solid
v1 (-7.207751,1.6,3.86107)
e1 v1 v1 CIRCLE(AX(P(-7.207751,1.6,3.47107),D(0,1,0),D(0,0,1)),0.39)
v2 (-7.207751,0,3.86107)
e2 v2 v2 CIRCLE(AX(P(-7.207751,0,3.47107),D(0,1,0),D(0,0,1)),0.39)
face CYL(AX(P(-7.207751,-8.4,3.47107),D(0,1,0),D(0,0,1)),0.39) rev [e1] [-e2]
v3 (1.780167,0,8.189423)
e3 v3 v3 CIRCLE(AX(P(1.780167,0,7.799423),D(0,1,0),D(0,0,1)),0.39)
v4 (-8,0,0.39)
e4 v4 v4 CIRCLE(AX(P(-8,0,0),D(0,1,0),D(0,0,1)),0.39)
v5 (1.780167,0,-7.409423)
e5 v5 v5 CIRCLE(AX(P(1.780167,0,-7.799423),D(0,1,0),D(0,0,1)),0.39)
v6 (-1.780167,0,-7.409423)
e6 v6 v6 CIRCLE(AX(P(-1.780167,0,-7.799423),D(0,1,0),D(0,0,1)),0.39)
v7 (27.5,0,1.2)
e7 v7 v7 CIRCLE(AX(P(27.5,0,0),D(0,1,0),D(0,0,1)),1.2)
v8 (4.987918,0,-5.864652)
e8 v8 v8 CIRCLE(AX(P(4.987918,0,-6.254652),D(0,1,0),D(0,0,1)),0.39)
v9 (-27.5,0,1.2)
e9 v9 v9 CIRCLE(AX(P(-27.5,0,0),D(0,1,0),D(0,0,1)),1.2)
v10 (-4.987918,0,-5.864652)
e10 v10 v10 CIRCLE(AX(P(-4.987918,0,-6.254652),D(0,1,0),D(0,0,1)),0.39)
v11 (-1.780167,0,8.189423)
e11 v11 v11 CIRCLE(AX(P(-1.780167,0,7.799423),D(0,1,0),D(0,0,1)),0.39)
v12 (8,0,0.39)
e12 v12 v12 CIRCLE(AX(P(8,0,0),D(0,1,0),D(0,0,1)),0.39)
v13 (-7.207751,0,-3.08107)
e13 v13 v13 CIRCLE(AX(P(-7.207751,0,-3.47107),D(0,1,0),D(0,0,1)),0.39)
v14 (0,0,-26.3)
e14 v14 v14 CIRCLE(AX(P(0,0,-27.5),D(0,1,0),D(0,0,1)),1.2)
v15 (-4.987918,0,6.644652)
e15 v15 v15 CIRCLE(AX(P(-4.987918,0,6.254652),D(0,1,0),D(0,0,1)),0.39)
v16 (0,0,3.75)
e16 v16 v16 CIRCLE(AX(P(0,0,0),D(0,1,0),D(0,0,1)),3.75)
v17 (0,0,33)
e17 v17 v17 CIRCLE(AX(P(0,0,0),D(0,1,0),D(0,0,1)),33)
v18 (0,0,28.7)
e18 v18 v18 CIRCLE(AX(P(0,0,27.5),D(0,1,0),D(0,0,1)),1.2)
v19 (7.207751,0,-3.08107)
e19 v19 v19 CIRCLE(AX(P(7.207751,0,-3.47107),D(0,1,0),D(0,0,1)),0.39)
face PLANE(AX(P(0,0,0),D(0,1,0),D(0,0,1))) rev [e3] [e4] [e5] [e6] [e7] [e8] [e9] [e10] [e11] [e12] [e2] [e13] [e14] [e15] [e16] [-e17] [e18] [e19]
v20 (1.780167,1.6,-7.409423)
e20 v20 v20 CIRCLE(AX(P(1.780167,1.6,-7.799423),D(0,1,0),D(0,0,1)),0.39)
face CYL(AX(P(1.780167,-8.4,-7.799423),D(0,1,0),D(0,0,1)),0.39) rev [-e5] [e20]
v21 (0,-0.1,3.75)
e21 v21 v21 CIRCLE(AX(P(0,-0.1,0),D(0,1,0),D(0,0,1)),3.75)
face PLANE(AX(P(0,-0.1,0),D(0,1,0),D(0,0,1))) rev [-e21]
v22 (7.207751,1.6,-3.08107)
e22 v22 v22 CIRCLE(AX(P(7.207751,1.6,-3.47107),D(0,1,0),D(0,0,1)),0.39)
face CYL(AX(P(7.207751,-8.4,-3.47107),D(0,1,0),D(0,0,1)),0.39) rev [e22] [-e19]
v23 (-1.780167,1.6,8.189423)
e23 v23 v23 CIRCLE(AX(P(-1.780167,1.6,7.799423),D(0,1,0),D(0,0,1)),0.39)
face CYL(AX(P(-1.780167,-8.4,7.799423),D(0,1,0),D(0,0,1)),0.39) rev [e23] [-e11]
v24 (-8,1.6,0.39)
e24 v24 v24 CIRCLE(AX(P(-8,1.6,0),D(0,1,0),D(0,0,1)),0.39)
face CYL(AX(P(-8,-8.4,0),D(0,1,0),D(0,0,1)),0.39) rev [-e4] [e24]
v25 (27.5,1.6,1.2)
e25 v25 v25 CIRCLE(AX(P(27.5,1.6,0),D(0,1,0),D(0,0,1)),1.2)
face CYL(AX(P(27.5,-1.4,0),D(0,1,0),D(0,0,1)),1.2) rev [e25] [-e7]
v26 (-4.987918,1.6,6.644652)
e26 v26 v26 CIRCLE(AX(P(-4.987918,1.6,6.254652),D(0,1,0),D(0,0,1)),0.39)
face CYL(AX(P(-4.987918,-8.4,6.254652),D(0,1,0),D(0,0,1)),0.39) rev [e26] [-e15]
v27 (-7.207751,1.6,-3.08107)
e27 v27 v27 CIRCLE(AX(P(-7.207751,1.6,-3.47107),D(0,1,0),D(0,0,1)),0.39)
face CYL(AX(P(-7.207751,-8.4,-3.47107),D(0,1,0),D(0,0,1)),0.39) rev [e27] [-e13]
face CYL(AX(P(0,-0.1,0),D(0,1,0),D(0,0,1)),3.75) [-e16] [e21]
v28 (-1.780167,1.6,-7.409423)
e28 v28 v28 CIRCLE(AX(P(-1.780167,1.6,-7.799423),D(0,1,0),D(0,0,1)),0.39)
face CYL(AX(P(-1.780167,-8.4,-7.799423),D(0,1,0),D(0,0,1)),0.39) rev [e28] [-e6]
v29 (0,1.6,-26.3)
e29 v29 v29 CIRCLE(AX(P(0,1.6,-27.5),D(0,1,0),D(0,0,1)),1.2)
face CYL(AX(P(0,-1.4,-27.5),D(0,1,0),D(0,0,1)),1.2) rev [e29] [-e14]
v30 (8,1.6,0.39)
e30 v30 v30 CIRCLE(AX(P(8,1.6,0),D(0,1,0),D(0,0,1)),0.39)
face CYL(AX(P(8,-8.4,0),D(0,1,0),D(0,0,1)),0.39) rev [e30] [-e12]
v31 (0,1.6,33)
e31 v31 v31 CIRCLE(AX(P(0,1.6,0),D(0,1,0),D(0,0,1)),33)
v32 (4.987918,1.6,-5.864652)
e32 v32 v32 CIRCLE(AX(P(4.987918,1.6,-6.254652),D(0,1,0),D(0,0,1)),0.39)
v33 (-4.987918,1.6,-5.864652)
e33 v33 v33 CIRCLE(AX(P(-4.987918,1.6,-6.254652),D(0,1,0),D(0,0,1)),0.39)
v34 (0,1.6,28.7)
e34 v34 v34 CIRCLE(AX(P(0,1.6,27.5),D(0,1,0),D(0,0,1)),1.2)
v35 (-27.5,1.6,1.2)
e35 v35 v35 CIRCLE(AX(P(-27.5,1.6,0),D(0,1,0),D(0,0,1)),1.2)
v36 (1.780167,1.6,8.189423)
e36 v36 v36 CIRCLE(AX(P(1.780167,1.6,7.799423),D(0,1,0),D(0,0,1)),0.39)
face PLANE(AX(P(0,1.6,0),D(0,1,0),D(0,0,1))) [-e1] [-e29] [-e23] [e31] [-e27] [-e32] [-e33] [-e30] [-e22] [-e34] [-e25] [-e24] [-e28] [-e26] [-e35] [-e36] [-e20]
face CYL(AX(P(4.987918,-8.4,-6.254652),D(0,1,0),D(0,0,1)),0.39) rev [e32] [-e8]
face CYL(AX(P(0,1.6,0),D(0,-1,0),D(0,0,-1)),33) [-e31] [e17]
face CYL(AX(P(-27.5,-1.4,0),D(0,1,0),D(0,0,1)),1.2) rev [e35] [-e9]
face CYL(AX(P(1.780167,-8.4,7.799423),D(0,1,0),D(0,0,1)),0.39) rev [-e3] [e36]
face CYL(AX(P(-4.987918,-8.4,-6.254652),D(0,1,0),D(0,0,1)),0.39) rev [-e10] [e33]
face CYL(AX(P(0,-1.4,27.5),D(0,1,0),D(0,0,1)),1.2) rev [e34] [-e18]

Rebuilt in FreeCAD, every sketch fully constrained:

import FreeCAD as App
import Part
import Sketcher

doc = App.newDocument("Part")
body = doc.addObject("PartDesign::Body", "Body")

sketch1 = body.newObject("Sketcher::SketchObject", "Sketch")
sketch1.AttachmentSupport = (doc.getObject("XZ_Plane"), [""])
sketch1.MapMode = "FlatFace"
sketch1.addGeometry(Part.Circle(App.Vector(0, 0, 0), App.Vector(0, 0, 1), 33), False)
sketch1.addConstraint([
    Sketcher.Constraint("Coincident", 0, 3, -1, 1),
    Sketcher.Constraint("Diameter", 0, 66.0),
])
pad1 = body.newObject("PartDesign::Pad", "Pad")
pad1.Profile = sketch1
pad1.Length = 1.6
pad1.Reversed = True

sketch2 = body.newObject("Sketcher::SketchObject", "Sketch001")
sketch2.AttachmentSupport = (doc.getObject("XZ_Plane"), [""])
sketch2.MapMode = "FlatFace"
sketch2.AttachmentOffset = App.Placement(App.Vector(0, 0, -1.6), App.Rotation())
sketch2.addGeometry([
    Part.Circle(App.Vector(0, -27.5, 0), App.Vector(0, 0, 1), 1.2),
    Part.Circle(App.Vector(27.5, 0, 0), App.Vector(0, 0, 1), 1.2),
    Part.Circle(App.Vector(0, 27.5, 0), App.Vector(0, 0, 1), 1.2),
    Part.Circle(App.Vector(-27.5, 0, 0), App.Vector(0, 0, 1), 1.2),
], False)
sketch2.addConstraint([
    Sketcher.Constraint("Equal", 0, 1),
    Sketcher.Constraint("Equal", 1, 2),
    Sketcher.Constraint("Equal", 2, 3),
    Sketcher.Constraint("Symmetric", 0, 3, 2, 3, -1, 1),
    Sketcher.Constraint("Symmetric", 1, 3, 3, 3, -1, 1),
    Sketcher.Constraint("PointOnObject", 0, 3, -2),
    Sketcher.Constraint("PointOnObject", 1, 3, -1),
    Sketcher.Constraint("Diameter", 0, 2.4),
    Sketcher.Constraint("DistanceY", 0, 3, 2, 3, 55.0),
    Sketcher.Constraint("DistanceX", 3, 3, 1, 3, 55.0),
])
pocket1 = body.newObject("PartDesign::Pocket", "Pocket")
pocket1.Profile = sketch2
pocket1.Length = 3
pocket1.Reversed = True

sketch3 = body.newObject("Sketcher::SketchObject", "Sketch002")
sketch3.AttachmentSupport = (doc.getObject("XZ_Plane"), [""])
sketch3.MapMode = "FlatFace"
sketch3.AttachmentOffset = App.Placement(App.Vector(0, 0, -1.6), App.Rotation())
sketch3.addGeometry(Part.Circle(App.Vector(0, 0, 0), App.Vector(0, 0, 1), 3.75), False)
sketch3.addConstraint([
    Sketcher.Constraint("Coincident", 0, 3, -1, 1),
    Sketcher.Constraint("Diameter", 0, 7.5),
])
pocket2 = body.newObject("PartDesign::Pocket", "Pocket001")
pocket2.Profile = sketch3
pocket2.Length = 3
pocket2.Reversed = True

sketch4 = body.newObject("Sketcher::SketchObject", "Sketch003")
sketch4.AttachmentSupport = (doc.getObject("XZ_Plane"), [""])
sketch4.MapMode = "FlatFace"
sketch4.AttachmentOffset = App.Placement(App.Vector(0, 0, -1.6), App.Rotation())
sketch4.addGeometry([
    Part.Circle(App.Vector(-1.780167, -7.799423, 0), App.Vector(0, 0, 1), 0.39),
    Part.Circle(App.Vector(1.780167, -7.799423, 0), App.Vector(0, 0, 1), 0.39),
    Part.Circle(App.Vector(4.987918, -6.254652, 0), App.Vector(0, 0, 1), 0.39),
    Part.Circle(App.Vector(7.207751, -3.47107, 0), App.Vector(0, 0, 1), 0.39),
    Part.Circle(App.Vector(8, 0, 0), App.Vector(0, 0, 1), 0.39),
    Part.Circle(App.Vector(1.780167, 7.799423, 0), App.Vector(0, 0, 1), 0.39),
    Part.Circle(App.Vector(-1.780167, 7.799423, 0), App.Vector(0, 0, 1), 0.39),
    Part.Circle(App.Vector(-4.987918, 6.254652, 0), App.Vector(0, 0, 1), 0.39),
    Part.Circle(App.Vector(-7.207751, 3.47107, 0), App.Vector(0, 0, 1), 0.39),
    Part.Circle(App.Vector(-8, 0, 0), App.Vector(0, 0, 1), 0.39),
    Part.Circle(App.Vector(-7.207751, -3.47107, 0), App.Vector(0, 0, 1), 0.39),
    Part.Circle(App.Vector(-4.987918, -6.254652, 0), App.Vector(0, 0, 1), 0.39),
], False)
sketch4.addConstraint([
    Sketcher.Constraint("Equal", 0, 1),
    Sketcher.Constraint("Equal", 1, 2),
    Sketcher.Constraint("Equal", 2, 3),
    Sketcher.Constraint("Equal", 3, 4),
    Sketcher.Constraint("Equal", 4, 5),
    Sketcher.Constraint("Equal", 5, 6),
    Sketcher.Constraint("Equal", 6, 7),
    Sketcher.Constraint("Equal", 7, 8),
    Sketcher.Constraint("Equal", 8, 9),
    Sketcher.Constraint("Equal", 9, 10),
    Sketcher.Constraint("Equal", 10, 11),
    Sketcher.Constraint("Symmetric", 0, 3, 5, 3, -1, 1),
    Sketcher.Constraint("Symmetric", 1, 3, 6, 3, -1, 1),
    Sketcher.Constraint("Symmetric", 2, 3, 7, 3, -1, 1),
    Sketcher.Constraint("Symmetric", 3, 3, 8, 3, -1, 1),
    Sketcher.Constraint("Symmetric", 4, 3, 9, 3, -1, 1),
    Sketcher.Constraint("Symmetric", 0, 3, 1, 3, -2),
    Sketcher.Constraint("Symmetric", 3, 3, 10, 3, -2),
    Sketcher.Constraint("Symmetric", 2, 3, 11, 3, -2),
    Sketcher.Constraint("PointOnObject", 4, 3, -1),
    Sketcher.Constraint("Diameter", 0, 0.78),
    Sketcher.Constraint("DistanceX", -1, 1, 4, 3, 8.0),
    Sketcher.Constraint("DistanceX", -1, 1, 2, 3, 4.987918),
    Sketcher.Constraint("DistanceY", 2, 3, -1, 1, 6.254652),
    Sketcher.Constraint("DistanceX", -1, 1, 3, 3, 7.207751),
    Sketcher.Constraint("DistanceY", 3, 3, -1, 1, 3.47107),
    Sketcher.Constraint("DistanceX", 1, 3, 2, 3, 3.207751),
    Sketcher.Constraint("DistanceY", 1, 3, 2, 3, 1.544771),
])
pocket3 = body.newObject("PartDesign::Pocket", "Pocket002")
pocket3.Profile = sketch4
pocket3.Length = 10
pocket3.Reversed = True

sketch5 = body.newObject("Sketcher::SketchObject", "Sketch004")
sketch5.AttachmentSupport = (doc.getObject("XZ_Plane"), [""])
sketch5.MapMode = "FlatFace"
sketch5.AttachmentOffset = App.Placement(App.Vector(0, 0, -1.6), App.Rotation())
sketch5.addGeometry(Part.Circle(App.Vector(0, 0, 0), App.Vector(0, 0, 1), 3.75), False)
sketch5.addConstraint([
    Sketcher.Constraint("Coincident", 0, 3, -1, 1),
    Sketcher.Constraint("Diameter", 0, 7.5),
])
pad2 = body.newObject("PartDesign::Pad", "Pad001")
pad2.Profile = sketch5
pad2.Length = 1.7

doc.recompute()
